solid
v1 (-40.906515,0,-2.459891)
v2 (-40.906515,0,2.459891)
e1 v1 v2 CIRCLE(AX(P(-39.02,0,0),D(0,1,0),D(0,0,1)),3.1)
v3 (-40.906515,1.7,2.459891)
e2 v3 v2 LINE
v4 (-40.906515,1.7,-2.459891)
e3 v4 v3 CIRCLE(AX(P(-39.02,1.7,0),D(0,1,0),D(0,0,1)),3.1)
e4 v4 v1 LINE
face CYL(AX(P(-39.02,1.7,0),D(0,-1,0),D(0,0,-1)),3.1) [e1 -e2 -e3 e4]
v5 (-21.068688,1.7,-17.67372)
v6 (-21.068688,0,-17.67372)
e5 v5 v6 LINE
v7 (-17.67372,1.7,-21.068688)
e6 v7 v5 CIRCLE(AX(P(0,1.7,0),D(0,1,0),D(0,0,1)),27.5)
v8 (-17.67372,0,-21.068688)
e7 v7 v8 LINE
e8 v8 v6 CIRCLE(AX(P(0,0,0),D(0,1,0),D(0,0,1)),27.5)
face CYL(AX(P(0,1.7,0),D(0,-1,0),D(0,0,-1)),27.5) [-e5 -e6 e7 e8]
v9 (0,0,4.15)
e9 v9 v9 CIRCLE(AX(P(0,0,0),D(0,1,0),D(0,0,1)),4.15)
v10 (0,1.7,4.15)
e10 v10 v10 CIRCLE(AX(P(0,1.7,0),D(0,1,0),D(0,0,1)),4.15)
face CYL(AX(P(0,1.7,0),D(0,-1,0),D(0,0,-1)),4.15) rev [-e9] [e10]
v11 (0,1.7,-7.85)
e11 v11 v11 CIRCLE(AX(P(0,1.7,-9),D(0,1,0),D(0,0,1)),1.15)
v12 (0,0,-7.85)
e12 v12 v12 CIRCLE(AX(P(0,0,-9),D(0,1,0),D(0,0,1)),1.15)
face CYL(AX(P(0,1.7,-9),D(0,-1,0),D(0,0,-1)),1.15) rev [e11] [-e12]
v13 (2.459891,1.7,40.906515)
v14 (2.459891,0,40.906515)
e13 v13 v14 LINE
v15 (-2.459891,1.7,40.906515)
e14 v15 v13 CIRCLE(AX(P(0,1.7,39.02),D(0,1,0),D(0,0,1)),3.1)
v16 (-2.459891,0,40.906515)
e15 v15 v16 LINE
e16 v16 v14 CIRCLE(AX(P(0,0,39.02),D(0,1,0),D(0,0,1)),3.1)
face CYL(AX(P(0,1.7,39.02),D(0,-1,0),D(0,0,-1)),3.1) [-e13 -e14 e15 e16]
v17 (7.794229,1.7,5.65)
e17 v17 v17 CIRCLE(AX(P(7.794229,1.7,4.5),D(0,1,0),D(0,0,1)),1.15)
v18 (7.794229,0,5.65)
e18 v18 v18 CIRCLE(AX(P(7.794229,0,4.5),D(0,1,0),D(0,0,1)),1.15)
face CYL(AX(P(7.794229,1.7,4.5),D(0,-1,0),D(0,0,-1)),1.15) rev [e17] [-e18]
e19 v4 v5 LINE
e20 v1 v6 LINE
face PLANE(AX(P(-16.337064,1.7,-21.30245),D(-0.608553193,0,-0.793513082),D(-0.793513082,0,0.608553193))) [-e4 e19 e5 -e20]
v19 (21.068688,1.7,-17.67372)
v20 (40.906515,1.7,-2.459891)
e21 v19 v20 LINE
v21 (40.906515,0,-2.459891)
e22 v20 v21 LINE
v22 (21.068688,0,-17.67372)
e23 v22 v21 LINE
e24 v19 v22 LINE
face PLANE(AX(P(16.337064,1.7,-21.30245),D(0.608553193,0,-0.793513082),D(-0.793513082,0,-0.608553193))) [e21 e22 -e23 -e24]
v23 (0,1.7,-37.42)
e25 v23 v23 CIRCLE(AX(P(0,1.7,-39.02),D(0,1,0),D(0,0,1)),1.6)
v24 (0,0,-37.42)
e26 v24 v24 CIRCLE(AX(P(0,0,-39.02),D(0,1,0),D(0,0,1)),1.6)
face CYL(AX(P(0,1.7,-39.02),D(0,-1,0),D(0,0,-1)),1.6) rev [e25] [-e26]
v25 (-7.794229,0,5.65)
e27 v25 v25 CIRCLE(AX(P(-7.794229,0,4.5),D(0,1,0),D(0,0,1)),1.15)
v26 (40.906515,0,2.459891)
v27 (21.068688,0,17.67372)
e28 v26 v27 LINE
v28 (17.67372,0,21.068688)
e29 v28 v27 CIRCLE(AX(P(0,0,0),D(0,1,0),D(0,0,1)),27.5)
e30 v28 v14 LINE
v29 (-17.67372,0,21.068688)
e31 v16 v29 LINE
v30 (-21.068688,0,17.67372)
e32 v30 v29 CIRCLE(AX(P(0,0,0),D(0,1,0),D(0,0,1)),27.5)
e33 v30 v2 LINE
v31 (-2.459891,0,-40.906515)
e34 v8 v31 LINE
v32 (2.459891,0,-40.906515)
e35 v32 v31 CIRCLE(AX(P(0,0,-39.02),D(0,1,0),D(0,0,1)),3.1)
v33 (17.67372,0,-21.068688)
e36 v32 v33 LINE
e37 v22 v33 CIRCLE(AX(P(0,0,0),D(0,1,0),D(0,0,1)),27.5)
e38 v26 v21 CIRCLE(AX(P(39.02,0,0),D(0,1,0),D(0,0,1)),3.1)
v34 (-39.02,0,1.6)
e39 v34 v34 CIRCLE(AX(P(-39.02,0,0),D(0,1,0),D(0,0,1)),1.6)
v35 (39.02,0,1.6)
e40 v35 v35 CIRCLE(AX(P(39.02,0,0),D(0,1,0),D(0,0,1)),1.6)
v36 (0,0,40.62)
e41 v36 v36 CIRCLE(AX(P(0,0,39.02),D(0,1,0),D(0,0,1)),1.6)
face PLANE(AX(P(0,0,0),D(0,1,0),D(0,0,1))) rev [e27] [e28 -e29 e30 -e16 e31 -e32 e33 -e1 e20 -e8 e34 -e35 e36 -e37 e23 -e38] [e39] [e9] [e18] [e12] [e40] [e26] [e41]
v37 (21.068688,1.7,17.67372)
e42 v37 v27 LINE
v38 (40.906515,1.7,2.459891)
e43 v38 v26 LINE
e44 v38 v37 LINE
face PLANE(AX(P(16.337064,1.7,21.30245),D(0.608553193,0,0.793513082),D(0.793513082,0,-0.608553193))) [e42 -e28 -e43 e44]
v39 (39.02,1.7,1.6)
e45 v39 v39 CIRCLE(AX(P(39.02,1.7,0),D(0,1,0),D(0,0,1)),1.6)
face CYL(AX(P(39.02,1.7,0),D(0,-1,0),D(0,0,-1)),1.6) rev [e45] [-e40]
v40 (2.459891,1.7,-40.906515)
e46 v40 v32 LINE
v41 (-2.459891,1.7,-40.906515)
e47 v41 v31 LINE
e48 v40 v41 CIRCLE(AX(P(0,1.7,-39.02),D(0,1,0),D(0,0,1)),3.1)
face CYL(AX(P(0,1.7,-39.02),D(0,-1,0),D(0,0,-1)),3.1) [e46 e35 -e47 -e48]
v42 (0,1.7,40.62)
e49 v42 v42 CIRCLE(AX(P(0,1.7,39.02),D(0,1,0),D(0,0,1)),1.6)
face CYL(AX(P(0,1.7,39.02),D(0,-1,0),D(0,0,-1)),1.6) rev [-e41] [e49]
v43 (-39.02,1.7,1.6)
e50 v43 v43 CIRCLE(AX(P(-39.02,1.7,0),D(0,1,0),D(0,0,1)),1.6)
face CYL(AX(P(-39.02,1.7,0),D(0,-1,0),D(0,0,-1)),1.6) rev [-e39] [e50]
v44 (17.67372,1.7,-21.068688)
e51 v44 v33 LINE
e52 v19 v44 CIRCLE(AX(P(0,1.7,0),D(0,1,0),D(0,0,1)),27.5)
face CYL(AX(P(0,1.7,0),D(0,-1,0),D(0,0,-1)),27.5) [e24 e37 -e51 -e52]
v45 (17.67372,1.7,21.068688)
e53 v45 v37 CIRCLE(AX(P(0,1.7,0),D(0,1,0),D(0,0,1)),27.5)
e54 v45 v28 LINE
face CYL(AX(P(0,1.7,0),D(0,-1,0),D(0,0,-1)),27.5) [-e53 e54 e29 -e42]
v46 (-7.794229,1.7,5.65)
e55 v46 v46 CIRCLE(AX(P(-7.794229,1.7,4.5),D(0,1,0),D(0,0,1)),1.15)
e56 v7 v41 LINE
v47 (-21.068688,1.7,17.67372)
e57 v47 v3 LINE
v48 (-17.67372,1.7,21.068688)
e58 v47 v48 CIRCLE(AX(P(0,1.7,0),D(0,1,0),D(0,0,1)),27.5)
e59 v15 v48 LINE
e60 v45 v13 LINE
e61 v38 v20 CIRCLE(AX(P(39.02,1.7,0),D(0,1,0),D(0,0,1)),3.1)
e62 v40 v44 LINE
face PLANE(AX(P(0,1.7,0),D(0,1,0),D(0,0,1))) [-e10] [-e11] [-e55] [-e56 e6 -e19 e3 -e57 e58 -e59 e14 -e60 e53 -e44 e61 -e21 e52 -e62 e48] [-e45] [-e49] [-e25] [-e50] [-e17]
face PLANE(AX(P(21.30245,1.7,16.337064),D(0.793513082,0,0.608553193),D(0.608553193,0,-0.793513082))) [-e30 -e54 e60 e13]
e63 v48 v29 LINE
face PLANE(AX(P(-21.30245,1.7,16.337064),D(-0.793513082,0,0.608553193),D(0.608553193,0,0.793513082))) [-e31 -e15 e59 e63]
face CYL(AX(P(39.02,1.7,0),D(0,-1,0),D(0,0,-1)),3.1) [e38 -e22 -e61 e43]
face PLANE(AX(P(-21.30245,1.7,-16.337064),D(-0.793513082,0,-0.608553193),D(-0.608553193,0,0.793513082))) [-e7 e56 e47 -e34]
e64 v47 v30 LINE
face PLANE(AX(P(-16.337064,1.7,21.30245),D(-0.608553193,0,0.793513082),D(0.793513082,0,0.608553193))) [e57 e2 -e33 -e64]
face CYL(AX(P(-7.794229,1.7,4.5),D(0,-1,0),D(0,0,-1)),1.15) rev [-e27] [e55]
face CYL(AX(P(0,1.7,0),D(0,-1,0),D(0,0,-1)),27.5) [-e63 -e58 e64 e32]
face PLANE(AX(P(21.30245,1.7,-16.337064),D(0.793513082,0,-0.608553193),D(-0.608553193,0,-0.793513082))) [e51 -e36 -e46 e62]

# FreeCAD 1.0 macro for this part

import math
import FreeCAD as App
import Part
import Sketcher
Q = App.Units.Quantity

doc = App.newDocument("Part")
body = doc.addObject("PartDesign::Body", "Body")

sketch1 = body.newObject("Sketcher::SketchObject", "Sketch")
sketch1.AttachmentSupport = (doc.getObject("XZ_Plane"), [""])
sketch1.MapMode = "FlatFace"
sketch1.addGeometry(Part.LineSegment(App.Vector(-17.67372, 21.068688, 0), App.Vector(-2.459891, 40.906515, 0)), False)
sketch1.addGeometry(Part.ArcOfCircle(Part.Circle(App.Vector(0, 39.02, 0), App.Vector(0, 0, 1), 3.1), math.radians(37.484963), math.radians(142.515037)), False)
sketch1.addGeometry(Part.LineSegment(App.Vector(2.459891, 40.906515, 0), App.Vector(17.67372, 21.068688, 0)), False)
sketch1.addGeometry(Part.ArcOfCircle(Part.Circle(App.Vector(0, 0, 0), App.Vector(0, 0, 1), 27.5), math.radians(39.992007), math.radians(50.007993)), False)
sketch1.addGeometry(Part.LineSegment(App.Vector(21.068688, 17.67372, 0), App.Vector(40.906515, 2.459891, 0)), False)
sketch1.addGeometry(Part.ArcOfCircle(Part.Circle(App.Vector(39.02, 0, 0), App.Vector(0, 0, 1), 3.1), math.radians(-52.515037), math.radians(52.515037)), False)
sketch1.addGeometry(Part.LineSegment(App.Vector(40.906515, -2.459891, 0), App.Vector(21.068688, -17.67372, 0)), False)
sketch1.addGeometry(Part.ArcOfCircle(Part.Circle(App.Vector(0, 0, 0), App.Vector(0, 0, 1), 27.5), math.radians(-50.007993), math.radians(-39.992007)), False)
sketch1.addGeometry(Part.LineSegment(App.Vector(17.67372, -21.068688, 0), App.Vector(2.459891, -40.906515, 0)), False)
sketch1.addGeometry(Part.ArcOfCircle(Part.Circle(App.Vector(0, -39.02, 0), App.Vector(0, 0, 1), 3.1), math.radians(-142.515037), math.radians(-37.484963)), False)
sketch1.addGeometry(Part.LineSegment(App.Vector(-2.459891, -40.906515, 0), App.Vector(-17.67372, -21.068688, 0)), False)
sketch1.addGeometry(Part.ArcOfCircle(Part.Circle(App.Vector(0, 0, 0), App.Vector(0, 0, 1), 27.5), math.radians(-140.007993), math.radians(-129.992007)), False)
sketch1.addGeometry(Part.LineSegment(App.Vector(-21.068688, -17.67372, 0), App.Vector(-40.906515, -2.459891, 0)), False)
sketch1.addGeometry(Part.ArcOfCircle(Part.Circle(App.Vector(-39.02, 0, 0), App.Vector(0, 0, 1), 3.1), math.radians(127.484963), math.radians(232.515037)), False)
sketch1.addGeometry(Part.LineSegment(App.Vector(-40.906515, 2.459891, 0), App.Vector(-21.068688, 17.67372, 0)), False)
sketch1.addGeometry(Part.ArcOfCircle(Part.Circle(App.Vector(0, 0, 0), App.Vector(0, 0, 1), 27.5), math.radians(129.992007), math.radians(140.007993)), False)
sketch1.addGeometry(Part.Circle(App.Vector(-7.794229, 4.5, 0), App.Vector(0, 0, 1), 1.15), False)
sketch1.addGeometry(Part.Circle(App.Vector(0, 39.02, 0), App.Vector(0, 0, 1), 1.6), False)
sketch1.addGeometry(Part.Circle(App.Vector(7.794229, 4.5, 0), App.Vector(0, 0, 1), 1.15), False)
sketch1.addGeometry(Part.Circle(App.Vector(-39.02, 0, 0), App.Vector(0, 0, 1), 1.6), False)
sketch1.addGeometry(Part.Circle(App.Vector(0, 0, 0), App.Vector(0, 0, 1), 4.15), False)
sketch1.addGeometry(Part.Circle(App.Vector(0, -9, 0), App.Vector(0, 0, 1), 1.15), False)
sketch1.addGeometry(Part.Circle(App.Vector(39.02, 0, 0), App.Vector(0, 0, 1), 1.6), False)
sketch1.addGeometry(Part.Circle(App.Vector(0, -39.02, 0), App.Vector(0, 0, 1), 1.6), False)
sketch1.addConstraint(Sketcher.Constraint("Tangent", 0, 2, 1, 2))
sketch1.addConstraint(Sketcher.Constraint("Tangent", 1, 1, 2, 1))
sketch1.addConstraint(Sketcher.Constraint("Coincident", 2, 2, 3, 2))
sketch1.addConstraint(Sketcher.Constraint("Coincident", 3, 1, 4, 1))
sketch1.addConstraint(Sketcher.Constraint("Tangent", 4, 2, 5, 2))
sketch1.addConstraint(Sketcher.Constraint("Tangent", 5, 1, 6, 1))
sketch1.addConstraint(Sketcher.Constraint("Coincident", 6, 2, 7, 2))
sketch1.addConstraint(Sketcher.Constraint("Coincident", 7, 1, 8, 1))
sketch1.addConstraint(Sketcher.Constraint("Tangent", 8, 2, 9, 2))
sketch1.addConstraint(Sketcher.Constraint("Tangent", 9, 1, 10, 1))
sketch1.addConstraint(Sketcher.Constraint("Coincident", 10, 2, 11, 2))
sketch1.addConstraint(Sketcher.Constraint("Coincident", 11, 1, 12, 1))
sketch1.addConstraint(Sketcher.Constraint("Tangent", 12, 2, 13, 2))
sketch1.addConstraint(Sketcher.Constraint("Tangent", 13, 1, 14, 1))
sketch1.addConstraint(Sketcher.Constraint("Coincident", 14, 2, 15, 2))
sketch1.addConstraint(Sketcher.Constraint("Coincident", 15, 1, 0, 1))
sketch1.addConstraint(Sketcher.Constraint("Coincident", 3, 3, -1, 1))
sketch1.addConstraint(Sketcher.Constraint("Coincident", 7, 3, -1, 1))
sketch1.addConstraint(Sketcher.Constraint("Coincident", 11, 3, -1, 1))
sketch1.addConstraint(Sketcher.Constraint("Coincident", 15, 3, -1, 1))
sketch1.addConstraint(Sketcher.Constraint("Coincident", 20, 3, -1, 1))
sketch1.addConstraint(Sketcher.Constraint("Coincident", 17, 3, 1, 3))
sketch1.addConstraint(Sketcher.Constraint("Coincident", 19, 3, 13, 3))
sketch1.addConstraint(Sketcher.Constraint("Coincident", 22, 3, 5, 3))
sketch1.addConstraint(Sketcher.Constraint("Coincident", 23, 3, 9, 3))
sketch1.addConstraint(Sketcher.Constraint("Equal", 1, 5))
sketch1.addConstraint(Sketcher.Constraint("Equal", 3, 7))
sketch1.addConstraint(Sketcher.Constraint("Equal", 5, 9))
sketch1.addConstraint(Sketcher.Constraint("Equal", 7, 11))
sketch1.addConstraint(Sketcher.Constraint("Equal", 9, 13))
sketch1.addConstraint(Sketcher.Constraint("Equal", 11, 15))
sketch1.addConstraint(Sketcher.Constraint("Equal", 16, 18))
sketch1.addConstraint(Sketcher.Constraint("Equal", 17, 19))
sketch1.addConstraint(Sketcher.Constraint("Equal", 18, 21))
sketch1.addConstraint(Sketcher.Constraint("Equal", 19, 22))
sketch1.addConstraint(Sketcher.Constraint("Equal", 22, 23))
sketch1.addConstraint(Sketcher.Constraint("Symmetric", 1, 3, 9, 3, -1, 1))
sketch1.addConstraint(Sketcher.Constraint("Symmetric", 5, 3, 13, 3, -1, 1))
sketch1.addConstraint(Sketcher.Constraint("Symmetric", 16, 3, 18, 3, -2))
sketch1.addConstraint(Sketcher.Constraint("Symmetric", 0, 2, 1, 1, -2))
sketch1.addConstraint(Sketcher.Constraint("Symmetric", 5, 1, 12, 2, -2))
sketch1.addConstraint(Sketcher.Constraint("PointOnObject", 21, 3, -2))
sketch1.addConstraint(Sketcher.Constraint("Perpendicular", 0, 4))
sketch1.addConstraint(Sketcher.Constraint("Perpendicular", 2, 6))
sketch1.addConstraint(Sketcher.Constraint("Perpendicular", 4, 8))
sketch1.addConstraint(Sketcher.Constraint("Perpendicular", 6, 10))
sketch1.addConstraint(Sketcher.Constraint("Perpendicular", 10, 14))
sketch1.addConstraint(Sketcher.Constraint("Equal", 2, 4))
sketch1.addConstraint(Sketcher.Constraint("Diameter", 16, Q("2.3 mm")))
sketch1.addConstraint(Sketcher.Constraint("Diameter", 17, Q("3.2 mm")))
sketch1.addConstraint(Sketcher.Constraint("Diameter", 20, Q("8.3 mm")))
sketch1.addConstraint(Sketcher.Constraint("Radius", 1, Q("3.1 mm")))
sketch1.addConstraint(Sketcher.Constraint("Radius", 3, Q("27.5 mm")))
sketch1.addConstraint(Sketcher.Constraint("Distance", 0, Q("25 mm")))
sketch1.addConstraint(Sketcher.Constraint("DistanceY", 21, 3, -1, 1, Q("9 mm")))
sketch1.addConstraint(Sketcher.Constraint("DistanceY", -1, 1, 16, 3, Q("4.5 mm")))
sketch1.addConstraint(Sketcher.Constraint("DistanceY", -1, 1, 1, 3, Q("39.02 mm")))
sketch1.addConstraint(Sketcher.Constraint("DistanceX", 16, 3, -1, 1, Q("7.794229 mm")))
pad1 = body.newObject("PartDesign::Pad", "Pad")
pad1.Profile = sketch1
pad1.Length = 1.7
pad1.Reversed = True

doc.recompute()
